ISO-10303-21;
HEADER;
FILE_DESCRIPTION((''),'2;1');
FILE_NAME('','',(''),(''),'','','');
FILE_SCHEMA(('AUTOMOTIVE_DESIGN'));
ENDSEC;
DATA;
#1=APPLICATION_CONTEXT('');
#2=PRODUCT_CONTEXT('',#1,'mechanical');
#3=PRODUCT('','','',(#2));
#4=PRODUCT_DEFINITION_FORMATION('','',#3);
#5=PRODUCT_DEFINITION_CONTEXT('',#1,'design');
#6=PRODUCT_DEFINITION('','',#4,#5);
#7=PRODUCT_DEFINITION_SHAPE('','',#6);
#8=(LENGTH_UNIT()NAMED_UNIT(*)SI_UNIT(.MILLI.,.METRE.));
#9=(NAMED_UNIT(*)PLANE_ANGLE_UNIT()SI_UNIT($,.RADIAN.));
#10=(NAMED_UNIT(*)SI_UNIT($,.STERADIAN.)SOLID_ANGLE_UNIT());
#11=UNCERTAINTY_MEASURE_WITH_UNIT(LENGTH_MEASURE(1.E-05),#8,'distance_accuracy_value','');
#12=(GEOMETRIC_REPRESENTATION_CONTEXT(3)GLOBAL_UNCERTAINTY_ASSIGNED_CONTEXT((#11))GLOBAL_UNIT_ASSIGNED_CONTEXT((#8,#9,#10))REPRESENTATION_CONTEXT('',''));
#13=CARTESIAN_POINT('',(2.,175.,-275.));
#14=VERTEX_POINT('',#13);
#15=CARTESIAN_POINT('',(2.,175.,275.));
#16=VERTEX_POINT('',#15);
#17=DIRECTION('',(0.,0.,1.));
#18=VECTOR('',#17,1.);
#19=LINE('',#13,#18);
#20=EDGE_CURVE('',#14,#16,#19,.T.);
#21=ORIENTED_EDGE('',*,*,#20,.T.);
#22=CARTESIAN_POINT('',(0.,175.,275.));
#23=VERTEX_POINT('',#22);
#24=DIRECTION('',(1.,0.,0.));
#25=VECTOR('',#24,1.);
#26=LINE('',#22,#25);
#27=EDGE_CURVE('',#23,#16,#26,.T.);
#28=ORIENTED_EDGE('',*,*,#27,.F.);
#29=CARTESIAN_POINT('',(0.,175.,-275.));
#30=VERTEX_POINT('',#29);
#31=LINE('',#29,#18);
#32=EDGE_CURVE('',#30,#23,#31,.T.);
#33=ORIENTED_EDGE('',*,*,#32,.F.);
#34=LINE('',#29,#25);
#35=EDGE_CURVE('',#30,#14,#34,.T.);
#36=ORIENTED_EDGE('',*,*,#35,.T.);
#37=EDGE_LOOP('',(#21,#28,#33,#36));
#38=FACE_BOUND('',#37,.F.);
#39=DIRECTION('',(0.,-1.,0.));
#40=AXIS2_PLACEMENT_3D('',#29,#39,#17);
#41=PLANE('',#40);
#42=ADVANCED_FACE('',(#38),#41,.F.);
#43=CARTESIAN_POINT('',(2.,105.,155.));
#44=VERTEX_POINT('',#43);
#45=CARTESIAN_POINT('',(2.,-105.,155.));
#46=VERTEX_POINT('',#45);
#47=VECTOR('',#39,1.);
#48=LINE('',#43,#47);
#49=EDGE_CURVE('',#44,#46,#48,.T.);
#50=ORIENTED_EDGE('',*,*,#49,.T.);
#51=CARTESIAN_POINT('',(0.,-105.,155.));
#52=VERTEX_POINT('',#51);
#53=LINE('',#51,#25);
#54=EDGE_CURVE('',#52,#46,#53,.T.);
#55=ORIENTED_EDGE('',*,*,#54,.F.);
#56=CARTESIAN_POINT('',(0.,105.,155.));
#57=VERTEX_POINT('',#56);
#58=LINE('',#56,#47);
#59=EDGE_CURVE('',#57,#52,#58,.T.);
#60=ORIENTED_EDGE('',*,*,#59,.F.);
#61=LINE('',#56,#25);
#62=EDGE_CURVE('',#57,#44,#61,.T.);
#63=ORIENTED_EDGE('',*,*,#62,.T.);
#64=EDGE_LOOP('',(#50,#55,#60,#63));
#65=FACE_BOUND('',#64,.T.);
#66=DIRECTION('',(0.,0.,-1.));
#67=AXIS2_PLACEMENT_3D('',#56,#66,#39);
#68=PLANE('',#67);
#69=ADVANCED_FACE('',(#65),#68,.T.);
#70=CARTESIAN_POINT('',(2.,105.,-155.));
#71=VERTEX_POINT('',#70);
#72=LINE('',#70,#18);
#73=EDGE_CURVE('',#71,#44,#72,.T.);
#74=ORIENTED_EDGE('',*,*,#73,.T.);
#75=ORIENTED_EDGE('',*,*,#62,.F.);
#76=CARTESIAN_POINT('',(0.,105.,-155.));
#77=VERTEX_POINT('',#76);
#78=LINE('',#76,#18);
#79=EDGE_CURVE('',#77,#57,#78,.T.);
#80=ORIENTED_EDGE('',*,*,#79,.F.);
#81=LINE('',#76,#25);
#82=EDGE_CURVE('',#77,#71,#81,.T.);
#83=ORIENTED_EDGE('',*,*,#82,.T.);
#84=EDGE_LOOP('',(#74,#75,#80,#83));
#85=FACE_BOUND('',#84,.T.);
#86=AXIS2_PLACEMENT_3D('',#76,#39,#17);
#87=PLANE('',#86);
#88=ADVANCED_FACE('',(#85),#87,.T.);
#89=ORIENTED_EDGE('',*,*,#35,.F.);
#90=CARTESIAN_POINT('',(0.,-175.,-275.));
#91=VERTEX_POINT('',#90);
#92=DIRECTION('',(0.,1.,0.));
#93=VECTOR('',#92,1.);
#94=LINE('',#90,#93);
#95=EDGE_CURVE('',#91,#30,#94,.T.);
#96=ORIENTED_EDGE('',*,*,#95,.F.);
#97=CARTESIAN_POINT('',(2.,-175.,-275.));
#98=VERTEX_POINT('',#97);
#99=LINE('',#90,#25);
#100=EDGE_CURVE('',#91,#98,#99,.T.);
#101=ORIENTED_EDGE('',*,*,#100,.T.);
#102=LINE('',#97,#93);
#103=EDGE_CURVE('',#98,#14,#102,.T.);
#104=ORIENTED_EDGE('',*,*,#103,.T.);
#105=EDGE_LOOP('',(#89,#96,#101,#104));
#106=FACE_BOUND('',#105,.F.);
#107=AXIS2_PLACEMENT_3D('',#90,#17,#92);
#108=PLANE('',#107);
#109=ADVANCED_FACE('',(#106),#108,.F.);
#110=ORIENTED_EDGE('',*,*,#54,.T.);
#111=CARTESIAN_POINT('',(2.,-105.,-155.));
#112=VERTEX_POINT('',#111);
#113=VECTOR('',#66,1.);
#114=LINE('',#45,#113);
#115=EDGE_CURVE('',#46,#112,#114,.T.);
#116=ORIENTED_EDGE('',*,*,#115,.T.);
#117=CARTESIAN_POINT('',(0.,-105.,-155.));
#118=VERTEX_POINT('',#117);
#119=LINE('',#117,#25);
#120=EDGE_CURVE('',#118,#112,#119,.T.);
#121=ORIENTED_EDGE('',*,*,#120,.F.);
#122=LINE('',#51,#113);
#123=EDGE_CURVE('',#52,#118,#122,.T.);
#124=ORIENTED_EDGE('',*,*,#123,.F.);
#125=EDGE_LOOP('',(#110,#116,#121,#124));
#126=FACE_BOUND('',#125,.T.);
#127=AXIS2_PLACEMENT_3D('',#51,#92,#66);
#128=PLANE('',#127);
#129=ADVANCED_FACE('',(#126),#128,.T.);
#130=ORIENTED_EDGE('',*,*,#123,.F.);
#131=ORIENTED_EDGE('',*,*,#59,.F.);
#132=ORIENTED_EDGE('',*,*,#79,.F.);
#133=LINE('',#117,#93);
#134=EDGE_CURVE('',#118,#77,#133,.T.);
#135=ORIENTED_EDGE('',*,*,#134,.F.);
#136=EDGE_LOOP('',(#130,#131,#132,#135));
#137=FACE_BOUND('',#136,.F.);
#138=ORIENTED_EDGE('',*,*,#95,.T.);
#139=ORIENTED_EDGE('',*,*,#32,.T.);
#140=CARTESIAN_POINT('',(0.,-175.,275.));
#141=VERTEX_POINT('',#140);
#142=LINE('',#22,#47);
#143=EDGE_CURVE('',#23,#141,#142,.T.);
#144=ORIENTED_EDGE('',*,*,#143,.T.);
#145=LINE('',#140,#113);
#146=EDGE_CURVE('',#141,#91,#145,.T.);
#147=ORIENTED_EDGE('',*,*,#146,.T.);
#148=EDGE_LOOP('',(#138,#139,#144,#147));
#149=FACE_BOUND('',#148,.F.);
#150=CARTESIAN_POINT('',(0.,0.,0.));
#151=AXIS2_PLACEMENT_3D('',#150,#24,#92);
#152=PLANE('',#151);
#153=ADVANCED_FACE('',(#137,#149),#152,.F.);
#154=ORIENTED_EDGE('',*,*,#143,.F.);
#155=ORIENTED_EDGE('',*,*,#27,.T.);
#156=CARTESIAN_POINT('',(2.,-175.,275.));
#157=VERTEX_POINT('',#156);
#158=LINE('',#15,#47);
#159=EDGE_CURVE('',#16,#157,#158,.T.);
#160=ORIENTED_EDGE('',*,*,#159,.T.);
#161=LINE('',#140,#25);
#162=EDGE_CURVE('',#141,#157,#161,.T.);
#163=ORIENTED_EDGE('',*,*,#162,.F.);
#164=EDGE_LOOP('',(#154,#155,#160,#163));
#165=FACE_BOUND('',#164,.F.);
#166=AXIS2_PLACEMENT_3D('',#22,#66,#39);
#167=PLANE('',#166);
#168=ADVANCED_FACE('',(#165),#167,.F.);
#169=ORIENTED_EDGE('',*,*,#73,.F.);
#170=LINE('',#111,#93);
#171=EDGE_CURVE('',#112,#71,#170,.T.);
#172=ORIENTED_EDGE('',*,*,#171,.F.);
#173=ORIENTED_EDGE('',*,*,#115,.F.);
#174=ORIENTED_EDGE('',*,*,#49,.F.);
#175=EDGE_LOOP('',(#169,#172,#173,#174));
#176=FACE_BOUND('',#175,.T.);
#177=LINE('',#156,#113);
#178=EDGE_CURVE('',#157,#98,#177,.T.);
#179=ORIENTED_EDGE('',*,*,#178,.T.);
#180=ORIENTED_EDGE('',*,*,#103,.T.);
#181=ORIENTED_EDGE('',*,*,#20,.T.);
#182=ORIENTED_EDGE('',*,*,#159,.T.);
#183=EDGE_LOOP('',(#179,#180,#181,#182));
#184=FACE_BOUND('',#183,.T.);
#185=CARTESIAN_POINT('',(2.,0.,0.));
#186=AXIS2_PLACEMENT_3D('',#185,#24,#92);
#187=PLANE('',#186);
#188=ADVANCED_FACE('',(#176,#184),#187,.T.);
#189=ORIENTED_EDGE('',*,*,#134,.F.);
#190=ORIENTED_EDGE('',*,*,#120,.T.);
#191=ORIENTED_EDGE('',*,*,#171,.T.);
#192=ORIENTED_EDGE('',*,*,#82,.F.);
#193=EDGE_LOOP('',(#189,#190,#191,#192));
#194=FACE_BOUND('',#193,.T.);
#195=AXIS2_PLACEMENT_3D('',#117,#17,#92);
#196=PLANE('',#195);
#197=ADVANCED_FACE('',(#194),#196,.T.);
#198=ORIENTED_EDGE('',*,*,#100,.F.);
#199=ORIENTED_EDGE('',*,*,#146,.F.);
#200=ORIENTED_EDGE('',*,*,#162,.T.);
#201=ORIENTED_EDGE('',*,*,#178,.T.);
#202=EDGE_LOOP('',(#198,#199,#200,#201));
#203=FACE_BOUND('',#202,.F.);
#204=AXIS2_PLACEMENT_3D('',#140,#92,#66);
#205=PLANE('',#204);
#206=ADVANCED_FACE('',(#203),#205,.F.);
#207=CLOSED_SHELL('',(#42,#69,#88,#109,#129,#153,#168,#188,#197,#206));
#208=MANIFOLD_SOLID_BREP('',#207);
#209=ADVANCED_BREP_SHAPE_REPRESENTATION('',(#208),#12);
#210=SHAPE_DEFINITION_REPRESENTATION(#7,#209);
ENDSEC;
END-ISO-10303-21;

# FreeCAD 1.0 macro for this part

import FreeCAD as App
import Part
import Sketcher


def add_polygon(sketch, points):
    """Adds a closed chain of lines whose ends are joined by coincident constraints."""
    first, n = sketch.GeometryCount, len(points)
    for a, b in zip(points, points[1:] + points[:1]):
        sketch.addGeometry(Part.LineSegment(App.Vector(*a, 0), App.Vector(*b, 0)), False)
    for i in range(n):
        sketch.addConstraint(Sketcher.Constraint("Coincident", first + i, 2, first + (i + 1) % n, 1))

doc = App.newDocument("Part")
body = doc.addObject("PartDesign::Body", "Body")

# Sketch on YZ plane
sketch1 = body.newObject("Sketcher::SketchObject", "Sketch")
sketch1.AttachmentSupport = (doc.getObject("YZ_Plane"), [""])
sketch1.MapMode = "FlatFace"
add_polygon(sketch1, [(-175, 275), (-175, -275), (175, -275), (175, 275)])  # lines 0-3
add_polygon(sketch1, [(105, -155), (-105, -155), (-105, 155), (105, 155)])  # lines 4-7
sketch1.addConstraint([
    Sketcher.Constraint("Vertical", 0),
    Sketcher.Constraint("Horizontal", 1),
    Sketcher.Constraint("Vertical", 2),
    Sketcher.Constraint("Horizontal", 3),
    Sketcher.Constraint("Horizontal", 4),
    Sketcher.Constraint("Vertical", 5),
    Sketcher.Constraint("Horizontal", 6),
    Sketcher.Constraint("Vertical", 7),
    Sketcher.Constraint("Symmetric", 0, 2, 2, 2, -1, 1),
    Sketcher.Constraint("Symmetric", 4, 2, 6, 2, -1, 1),
    Sketcher.Constraint("DistanceX", 1, 1, 1, 2, 350.0),
    Sketcher.Constraint("DistanceX", 4, 2, 4, 1, 210.0),
    Sketcher.Constraint("DistanceY", 0, 2, 0, 1, 550.0),
    Sketcher.Constraint("DistanceY", 5, 1, 5, 2, 310.0),
])
pad1 = body.newObject("PartDesign::Pad", "Pad")
pad1.Profile = sketch1
pad1.Length = 2

doc.recompute()
